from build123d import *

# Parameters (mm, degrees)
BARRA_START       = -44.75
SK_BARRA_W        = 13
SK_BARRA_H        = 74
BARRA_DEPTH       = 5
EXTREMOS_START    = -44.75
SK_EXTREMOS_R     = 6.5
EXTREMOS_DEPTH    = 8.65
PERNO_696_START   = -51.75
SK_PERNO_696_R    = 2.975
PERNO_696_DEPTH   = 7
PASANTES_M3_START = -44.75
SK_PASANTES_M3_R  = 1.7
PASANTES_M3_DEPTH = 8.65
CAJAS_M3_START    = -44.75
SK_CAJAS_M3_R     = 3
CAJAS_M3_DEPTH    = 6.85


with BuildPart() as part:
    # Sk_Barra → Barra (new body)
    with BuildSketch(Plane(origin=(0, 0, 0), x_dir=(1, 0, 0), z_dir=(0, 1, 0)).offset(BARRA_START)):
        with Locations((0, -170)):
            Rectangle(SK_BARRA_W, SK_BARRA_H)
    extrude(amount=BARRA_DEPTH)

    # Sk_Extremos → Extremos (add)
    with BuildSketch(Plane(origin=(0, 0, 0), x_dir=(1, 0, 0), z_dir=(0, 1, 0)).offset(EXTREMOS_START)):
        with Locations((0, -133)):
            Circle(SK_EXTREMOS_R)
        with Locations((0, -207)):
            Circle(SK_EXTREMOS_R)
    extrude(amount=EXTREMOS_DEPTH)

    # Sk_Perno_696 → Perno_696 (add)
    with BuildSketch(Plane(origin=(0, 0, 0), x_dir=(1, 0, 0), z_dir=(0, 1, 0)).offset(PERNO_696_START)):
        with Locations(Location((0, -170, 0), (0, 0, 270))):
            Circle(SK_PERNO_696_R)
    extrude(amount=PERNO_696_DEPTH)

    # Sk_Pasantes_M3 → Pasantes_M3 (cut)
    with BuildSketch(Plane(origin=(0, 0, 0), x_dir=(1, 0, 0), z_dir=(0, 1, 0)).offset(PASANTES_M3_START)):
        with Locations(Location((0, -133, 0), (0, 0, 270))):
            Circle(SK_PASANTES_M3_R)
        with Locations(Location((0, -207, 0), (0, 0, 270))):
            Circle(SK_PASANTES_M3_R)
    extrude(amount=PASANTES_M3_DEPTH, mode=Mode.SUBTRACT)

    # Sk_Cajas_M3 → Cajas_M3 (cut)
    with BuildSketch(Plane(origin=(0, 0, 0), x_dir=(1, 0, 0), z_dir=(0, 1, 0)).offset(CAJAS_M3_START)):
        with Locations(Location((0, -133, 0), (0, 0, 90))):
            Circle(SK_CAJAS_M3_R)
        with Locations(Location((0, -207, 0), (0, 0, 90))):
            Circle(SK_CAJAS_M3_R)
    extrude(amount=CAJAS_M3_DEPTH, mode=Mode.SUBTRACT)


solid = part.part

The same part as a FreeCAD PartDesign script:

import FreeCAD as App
import Part
import Sketcher
from FreeCAD import Vector
Q = App.Units.Quantity


def add_polygon(sketch, points):
    """Adds a closed chain of lines whose ends are joined by coincident constraints."""
    first, n = sketch.GeometryCount, len(points)
    for a, b in zip(points, points[1:] + points[:1]):
        sketch.addGeometry(Part.LineSegment(App.Vector(*a, 0), App.Vector(*b, 0)), False)
    for i in range(n):
        sketch.addConstraint(Sketcher.Constraint("Coincident", first + i, 2, first + (i + 1) % n, 1))

doc = App.newDocument("Part")
params = doc.addObject("Spreadsheet::Sheet", "Params")
for row, (alias, value) in enumerate([
    ("sketch1_width", "13 mm"),
    ("sketch1_height", "74 mm"),
    ("pad1_length", "5 mm"),
    ("sketch2_diameter", "13 mm"),
    ("pad2_length", "8.65 mm"),
    ("sketch3_diameter", "5.95 mm"),
    ("pad3_length", "7 mm"),
    ("sketch4_diameter", "3.4 mm"),
    ("pocket1_length", "8.65 mm"),
    ("sketch5_diameter", "6 mm"),
    ("pocket2_length", "6.85 mm"),
], start=1):
    params.set(f"A{row}", alias)
    params.set(f"B{row}", "=" + value)
    params.setAlias(f"B{row}", alias)

body = doc.addObject("PartDesign::Body", "Body")

sketch1 = doc.addObject("Sketcher::SketchObject", "Sketch")
body.addObject(sketch1)
sketch1.AttachmentSupport = (doc.XZ_Plane, [""])
sketch1.MapMode = "FlatFace"
sketch1.AttachmentOffset = App.Placement(Vector(0, 0, 44.75), App.Rotation())
add_polygon(sketch1, [(-6, 133), (-6, 207), (6, 207), (6, 133)])
sketch1.addConstraint([
    Sketcher.Constraint("Vertical", 0),
    Sketcher.Constraint("Horizontal", 1),
    Sketcher.Constraint("Vertical", 2),
    Sketcher.Constraint("Horizontal", 3),
    Sketcher.Constraint("DistanceX", 1, 1, 1, 2, Q("13 mm")),
    Sketcher.Constraint("DistanceY", 0, 1, 0, 2, Q("74 mm")),
    Sketcher.Constraint("DistanceY", -1, 1, 0, 2, Q("207 mm")),
    Sketcher.Constraint("DistanceX", 0, 2, -1, 1, Q("6.5 mm")),
])
sketch1.setExpression("Constraints[8]", "Params.sketch1_width")
sketch1.setExpression("Constraints[9]", "Params.sketch1_height")
pad1 = doc.addObject("PartDesign::Pad", "Pad")
body.addObject(pad1)
pad1.Profile = sketch1
pad1.setExpression("Length", "Params.pad1_length")
pad1.Reversed = True

sketch2 = doc.addObject("Sketcher::SketchObject", "Sketch001")
body.addObject(sketch2)
sketch2.AttachmentSupport = (doc.XZ_Plane, [""])
sketch2.MapMode = "FlatFace"
sketch2.AttachmentOffset = App.Placement(Vector(0, 0, 44.75), App.Rotation())
sketch2.addGeometry([
    Part.Circle(Vector(0, 133, 0), Vector(0, 0, 1), 6),
    Part.Circle(Vector(0, 207, 0), Vector(0, 0, 1), 6),
], False)
sketch2.addConstraint([
    Sketcher.Constraint("Equal", 0, 1),
    Sketcher.Constraint("PointOnObject", 0, 3, -2),
    Sketcher.Constraint("PointOnObject", 1, 3, -2),
    Sketcher.Constraint("Diameter", 0, Q("13 mm")),
    Sketcher.Constraint("DistanceY", -1, 1, 0, 3, Q("133 mm")),
    Sketcher.Constraint("DistanceY", -1, 1, 1, 3, Q("207 mm")),
])
sketch2.setExpression("Constraints[3]", "Params.sketch2_diameter")
pad2 = doc.addObject("PartDesign::Pad", "Pad001")
body.addObject(pad2)
pad2.Profile = sketch2
pad2.setExpression("Length", "Params.pad2_length")
pad2.Reversed = True

sketch3 = doc.addObject("Sketcher::SketchObject", "Sketch002")
body.addObject(sketch3)
sketch3.AttachmentSupport = (doc.XZ_Plane, [""])
sketch3.MapMode = "FlatFace"
sketch3.AttachmentOffset = App.Placement(Vector(0, 0, 51.75), App.Rotation())
sketch3.addGeometry(Part.Circle(Vector(0, 170, 0), Vector(0, 0, 1), 3), False)
sketch3.addConstraint([
    Sketcher.Constraint("PointOnObject", 0, 3, -2),
    Sketcher.Constraint("Diameter", 0, Q("5.95 mm")),
    Sketcher.Constraint("DistanceY", -1, 1, 0, 3, Q("170 mm")),
])
sketch3.setExpression("Constraints[1]", "Params.sketch3_diameter")
pad3 = doc.addObject("PartDesign::Pad", "Pad002")
body.addObject(pad3)
pad3.Profile = sketch3
pad3.setExpression("Length", "Params.pad3_length")
pad3.Reversed = True

sketch4 = doc.addObject("Sketcher::SketchObject", "Sketch003")
body.addObject(sketch4)
sketch4.AttachmentSupport = (doc.XZ_Plane, [""])
sketch4.MapMode = "FlatFace"
sketch4.AttachmentOffset = App.Placement(Vector(0, 0, 44.75), App.Rotation())
sketch4.addGeometry([
    Part.Circle(Vector(0, 133, 0), Vector(0, 0, 1), 1.7),
    Part.Circle(Vector(0, 207, 0), Vector(0, 0, 1), 1.7),
], False)
sketch4.addConstraint([
    Sketcher.Constraint("Equal", 0, 1),
    Sketcher.Constraint("PointOnObject", 0, 3, -2),
    Sketcher.Constraint("PointOnObject", 1, 3, -2),
    Sketcher.Constraint("Diameter", 0, Q("3.4 mm")),
    Sketcher.Constraint("DistanceY", -1, 1, 0, 3, Q("133 mm")),
    Sketcher.Constraint("DistanceY", -1, 1, 1, 3, Q("207 mm")),
])
sketch4.setExpression("Constraints[3]", "Params.sketch4_diameter")
pocket1 = doc.addObject("PartDesign::Pocket", "Pocket")
body.addObject(pocket1)
pocket1.Profile = sketch4
pocket1.setExpression("Length", "Params.pocket1_length")

sketch5 = doc.addObject("Sketcher::SketchObject", "Sketch004")
body.addObject(sketch5)
sketch5.AttachmentSupport = (doc.XZ_Plane, [""])
sketch5.MapMode = "FlatFace"
sketch5.AttachmentOffset = App.Placement(Vector(0, 0, 44.75), App.Rotation())
sketch5.addGeometry([
    Part.Circle(Vector(0, 133, 0), Vector(0, 0, 1), 3),
    Part.Circle(Vector(0, 207, 0), Vector(0, 0, 1), 3),
], False)
sketch5.addConstraint([
    Sketcher.Constraint("Equal", 0, 1),
    Sketcher.Constraint("PointOnObject", 0, 3, -2),
    Sketcher.Constraint("PointOnObject", 1, 3, -2),
    Sketcher.Constraint("Diameter", 0, Q("6 mm")),
    Sketcher.Constraint("DistanceY", -1, 1, 0, 3, Q("133 mm")),
    Sketcher.Constraint("DistanceY", -1, 1, 1, 3, Q("207 mm")),
])
sketch5.setExpression("Constraints[3]", "Params.sketch5_diameter")
pocket2 = doc.addObject("PartDesign::Pocket", "Pocket001")
body.addObject(pocket2)
pocket2.Profile = sketch5
pocket2.setExpression("Length", "Params.pocket2_length")

doc.recompute()
